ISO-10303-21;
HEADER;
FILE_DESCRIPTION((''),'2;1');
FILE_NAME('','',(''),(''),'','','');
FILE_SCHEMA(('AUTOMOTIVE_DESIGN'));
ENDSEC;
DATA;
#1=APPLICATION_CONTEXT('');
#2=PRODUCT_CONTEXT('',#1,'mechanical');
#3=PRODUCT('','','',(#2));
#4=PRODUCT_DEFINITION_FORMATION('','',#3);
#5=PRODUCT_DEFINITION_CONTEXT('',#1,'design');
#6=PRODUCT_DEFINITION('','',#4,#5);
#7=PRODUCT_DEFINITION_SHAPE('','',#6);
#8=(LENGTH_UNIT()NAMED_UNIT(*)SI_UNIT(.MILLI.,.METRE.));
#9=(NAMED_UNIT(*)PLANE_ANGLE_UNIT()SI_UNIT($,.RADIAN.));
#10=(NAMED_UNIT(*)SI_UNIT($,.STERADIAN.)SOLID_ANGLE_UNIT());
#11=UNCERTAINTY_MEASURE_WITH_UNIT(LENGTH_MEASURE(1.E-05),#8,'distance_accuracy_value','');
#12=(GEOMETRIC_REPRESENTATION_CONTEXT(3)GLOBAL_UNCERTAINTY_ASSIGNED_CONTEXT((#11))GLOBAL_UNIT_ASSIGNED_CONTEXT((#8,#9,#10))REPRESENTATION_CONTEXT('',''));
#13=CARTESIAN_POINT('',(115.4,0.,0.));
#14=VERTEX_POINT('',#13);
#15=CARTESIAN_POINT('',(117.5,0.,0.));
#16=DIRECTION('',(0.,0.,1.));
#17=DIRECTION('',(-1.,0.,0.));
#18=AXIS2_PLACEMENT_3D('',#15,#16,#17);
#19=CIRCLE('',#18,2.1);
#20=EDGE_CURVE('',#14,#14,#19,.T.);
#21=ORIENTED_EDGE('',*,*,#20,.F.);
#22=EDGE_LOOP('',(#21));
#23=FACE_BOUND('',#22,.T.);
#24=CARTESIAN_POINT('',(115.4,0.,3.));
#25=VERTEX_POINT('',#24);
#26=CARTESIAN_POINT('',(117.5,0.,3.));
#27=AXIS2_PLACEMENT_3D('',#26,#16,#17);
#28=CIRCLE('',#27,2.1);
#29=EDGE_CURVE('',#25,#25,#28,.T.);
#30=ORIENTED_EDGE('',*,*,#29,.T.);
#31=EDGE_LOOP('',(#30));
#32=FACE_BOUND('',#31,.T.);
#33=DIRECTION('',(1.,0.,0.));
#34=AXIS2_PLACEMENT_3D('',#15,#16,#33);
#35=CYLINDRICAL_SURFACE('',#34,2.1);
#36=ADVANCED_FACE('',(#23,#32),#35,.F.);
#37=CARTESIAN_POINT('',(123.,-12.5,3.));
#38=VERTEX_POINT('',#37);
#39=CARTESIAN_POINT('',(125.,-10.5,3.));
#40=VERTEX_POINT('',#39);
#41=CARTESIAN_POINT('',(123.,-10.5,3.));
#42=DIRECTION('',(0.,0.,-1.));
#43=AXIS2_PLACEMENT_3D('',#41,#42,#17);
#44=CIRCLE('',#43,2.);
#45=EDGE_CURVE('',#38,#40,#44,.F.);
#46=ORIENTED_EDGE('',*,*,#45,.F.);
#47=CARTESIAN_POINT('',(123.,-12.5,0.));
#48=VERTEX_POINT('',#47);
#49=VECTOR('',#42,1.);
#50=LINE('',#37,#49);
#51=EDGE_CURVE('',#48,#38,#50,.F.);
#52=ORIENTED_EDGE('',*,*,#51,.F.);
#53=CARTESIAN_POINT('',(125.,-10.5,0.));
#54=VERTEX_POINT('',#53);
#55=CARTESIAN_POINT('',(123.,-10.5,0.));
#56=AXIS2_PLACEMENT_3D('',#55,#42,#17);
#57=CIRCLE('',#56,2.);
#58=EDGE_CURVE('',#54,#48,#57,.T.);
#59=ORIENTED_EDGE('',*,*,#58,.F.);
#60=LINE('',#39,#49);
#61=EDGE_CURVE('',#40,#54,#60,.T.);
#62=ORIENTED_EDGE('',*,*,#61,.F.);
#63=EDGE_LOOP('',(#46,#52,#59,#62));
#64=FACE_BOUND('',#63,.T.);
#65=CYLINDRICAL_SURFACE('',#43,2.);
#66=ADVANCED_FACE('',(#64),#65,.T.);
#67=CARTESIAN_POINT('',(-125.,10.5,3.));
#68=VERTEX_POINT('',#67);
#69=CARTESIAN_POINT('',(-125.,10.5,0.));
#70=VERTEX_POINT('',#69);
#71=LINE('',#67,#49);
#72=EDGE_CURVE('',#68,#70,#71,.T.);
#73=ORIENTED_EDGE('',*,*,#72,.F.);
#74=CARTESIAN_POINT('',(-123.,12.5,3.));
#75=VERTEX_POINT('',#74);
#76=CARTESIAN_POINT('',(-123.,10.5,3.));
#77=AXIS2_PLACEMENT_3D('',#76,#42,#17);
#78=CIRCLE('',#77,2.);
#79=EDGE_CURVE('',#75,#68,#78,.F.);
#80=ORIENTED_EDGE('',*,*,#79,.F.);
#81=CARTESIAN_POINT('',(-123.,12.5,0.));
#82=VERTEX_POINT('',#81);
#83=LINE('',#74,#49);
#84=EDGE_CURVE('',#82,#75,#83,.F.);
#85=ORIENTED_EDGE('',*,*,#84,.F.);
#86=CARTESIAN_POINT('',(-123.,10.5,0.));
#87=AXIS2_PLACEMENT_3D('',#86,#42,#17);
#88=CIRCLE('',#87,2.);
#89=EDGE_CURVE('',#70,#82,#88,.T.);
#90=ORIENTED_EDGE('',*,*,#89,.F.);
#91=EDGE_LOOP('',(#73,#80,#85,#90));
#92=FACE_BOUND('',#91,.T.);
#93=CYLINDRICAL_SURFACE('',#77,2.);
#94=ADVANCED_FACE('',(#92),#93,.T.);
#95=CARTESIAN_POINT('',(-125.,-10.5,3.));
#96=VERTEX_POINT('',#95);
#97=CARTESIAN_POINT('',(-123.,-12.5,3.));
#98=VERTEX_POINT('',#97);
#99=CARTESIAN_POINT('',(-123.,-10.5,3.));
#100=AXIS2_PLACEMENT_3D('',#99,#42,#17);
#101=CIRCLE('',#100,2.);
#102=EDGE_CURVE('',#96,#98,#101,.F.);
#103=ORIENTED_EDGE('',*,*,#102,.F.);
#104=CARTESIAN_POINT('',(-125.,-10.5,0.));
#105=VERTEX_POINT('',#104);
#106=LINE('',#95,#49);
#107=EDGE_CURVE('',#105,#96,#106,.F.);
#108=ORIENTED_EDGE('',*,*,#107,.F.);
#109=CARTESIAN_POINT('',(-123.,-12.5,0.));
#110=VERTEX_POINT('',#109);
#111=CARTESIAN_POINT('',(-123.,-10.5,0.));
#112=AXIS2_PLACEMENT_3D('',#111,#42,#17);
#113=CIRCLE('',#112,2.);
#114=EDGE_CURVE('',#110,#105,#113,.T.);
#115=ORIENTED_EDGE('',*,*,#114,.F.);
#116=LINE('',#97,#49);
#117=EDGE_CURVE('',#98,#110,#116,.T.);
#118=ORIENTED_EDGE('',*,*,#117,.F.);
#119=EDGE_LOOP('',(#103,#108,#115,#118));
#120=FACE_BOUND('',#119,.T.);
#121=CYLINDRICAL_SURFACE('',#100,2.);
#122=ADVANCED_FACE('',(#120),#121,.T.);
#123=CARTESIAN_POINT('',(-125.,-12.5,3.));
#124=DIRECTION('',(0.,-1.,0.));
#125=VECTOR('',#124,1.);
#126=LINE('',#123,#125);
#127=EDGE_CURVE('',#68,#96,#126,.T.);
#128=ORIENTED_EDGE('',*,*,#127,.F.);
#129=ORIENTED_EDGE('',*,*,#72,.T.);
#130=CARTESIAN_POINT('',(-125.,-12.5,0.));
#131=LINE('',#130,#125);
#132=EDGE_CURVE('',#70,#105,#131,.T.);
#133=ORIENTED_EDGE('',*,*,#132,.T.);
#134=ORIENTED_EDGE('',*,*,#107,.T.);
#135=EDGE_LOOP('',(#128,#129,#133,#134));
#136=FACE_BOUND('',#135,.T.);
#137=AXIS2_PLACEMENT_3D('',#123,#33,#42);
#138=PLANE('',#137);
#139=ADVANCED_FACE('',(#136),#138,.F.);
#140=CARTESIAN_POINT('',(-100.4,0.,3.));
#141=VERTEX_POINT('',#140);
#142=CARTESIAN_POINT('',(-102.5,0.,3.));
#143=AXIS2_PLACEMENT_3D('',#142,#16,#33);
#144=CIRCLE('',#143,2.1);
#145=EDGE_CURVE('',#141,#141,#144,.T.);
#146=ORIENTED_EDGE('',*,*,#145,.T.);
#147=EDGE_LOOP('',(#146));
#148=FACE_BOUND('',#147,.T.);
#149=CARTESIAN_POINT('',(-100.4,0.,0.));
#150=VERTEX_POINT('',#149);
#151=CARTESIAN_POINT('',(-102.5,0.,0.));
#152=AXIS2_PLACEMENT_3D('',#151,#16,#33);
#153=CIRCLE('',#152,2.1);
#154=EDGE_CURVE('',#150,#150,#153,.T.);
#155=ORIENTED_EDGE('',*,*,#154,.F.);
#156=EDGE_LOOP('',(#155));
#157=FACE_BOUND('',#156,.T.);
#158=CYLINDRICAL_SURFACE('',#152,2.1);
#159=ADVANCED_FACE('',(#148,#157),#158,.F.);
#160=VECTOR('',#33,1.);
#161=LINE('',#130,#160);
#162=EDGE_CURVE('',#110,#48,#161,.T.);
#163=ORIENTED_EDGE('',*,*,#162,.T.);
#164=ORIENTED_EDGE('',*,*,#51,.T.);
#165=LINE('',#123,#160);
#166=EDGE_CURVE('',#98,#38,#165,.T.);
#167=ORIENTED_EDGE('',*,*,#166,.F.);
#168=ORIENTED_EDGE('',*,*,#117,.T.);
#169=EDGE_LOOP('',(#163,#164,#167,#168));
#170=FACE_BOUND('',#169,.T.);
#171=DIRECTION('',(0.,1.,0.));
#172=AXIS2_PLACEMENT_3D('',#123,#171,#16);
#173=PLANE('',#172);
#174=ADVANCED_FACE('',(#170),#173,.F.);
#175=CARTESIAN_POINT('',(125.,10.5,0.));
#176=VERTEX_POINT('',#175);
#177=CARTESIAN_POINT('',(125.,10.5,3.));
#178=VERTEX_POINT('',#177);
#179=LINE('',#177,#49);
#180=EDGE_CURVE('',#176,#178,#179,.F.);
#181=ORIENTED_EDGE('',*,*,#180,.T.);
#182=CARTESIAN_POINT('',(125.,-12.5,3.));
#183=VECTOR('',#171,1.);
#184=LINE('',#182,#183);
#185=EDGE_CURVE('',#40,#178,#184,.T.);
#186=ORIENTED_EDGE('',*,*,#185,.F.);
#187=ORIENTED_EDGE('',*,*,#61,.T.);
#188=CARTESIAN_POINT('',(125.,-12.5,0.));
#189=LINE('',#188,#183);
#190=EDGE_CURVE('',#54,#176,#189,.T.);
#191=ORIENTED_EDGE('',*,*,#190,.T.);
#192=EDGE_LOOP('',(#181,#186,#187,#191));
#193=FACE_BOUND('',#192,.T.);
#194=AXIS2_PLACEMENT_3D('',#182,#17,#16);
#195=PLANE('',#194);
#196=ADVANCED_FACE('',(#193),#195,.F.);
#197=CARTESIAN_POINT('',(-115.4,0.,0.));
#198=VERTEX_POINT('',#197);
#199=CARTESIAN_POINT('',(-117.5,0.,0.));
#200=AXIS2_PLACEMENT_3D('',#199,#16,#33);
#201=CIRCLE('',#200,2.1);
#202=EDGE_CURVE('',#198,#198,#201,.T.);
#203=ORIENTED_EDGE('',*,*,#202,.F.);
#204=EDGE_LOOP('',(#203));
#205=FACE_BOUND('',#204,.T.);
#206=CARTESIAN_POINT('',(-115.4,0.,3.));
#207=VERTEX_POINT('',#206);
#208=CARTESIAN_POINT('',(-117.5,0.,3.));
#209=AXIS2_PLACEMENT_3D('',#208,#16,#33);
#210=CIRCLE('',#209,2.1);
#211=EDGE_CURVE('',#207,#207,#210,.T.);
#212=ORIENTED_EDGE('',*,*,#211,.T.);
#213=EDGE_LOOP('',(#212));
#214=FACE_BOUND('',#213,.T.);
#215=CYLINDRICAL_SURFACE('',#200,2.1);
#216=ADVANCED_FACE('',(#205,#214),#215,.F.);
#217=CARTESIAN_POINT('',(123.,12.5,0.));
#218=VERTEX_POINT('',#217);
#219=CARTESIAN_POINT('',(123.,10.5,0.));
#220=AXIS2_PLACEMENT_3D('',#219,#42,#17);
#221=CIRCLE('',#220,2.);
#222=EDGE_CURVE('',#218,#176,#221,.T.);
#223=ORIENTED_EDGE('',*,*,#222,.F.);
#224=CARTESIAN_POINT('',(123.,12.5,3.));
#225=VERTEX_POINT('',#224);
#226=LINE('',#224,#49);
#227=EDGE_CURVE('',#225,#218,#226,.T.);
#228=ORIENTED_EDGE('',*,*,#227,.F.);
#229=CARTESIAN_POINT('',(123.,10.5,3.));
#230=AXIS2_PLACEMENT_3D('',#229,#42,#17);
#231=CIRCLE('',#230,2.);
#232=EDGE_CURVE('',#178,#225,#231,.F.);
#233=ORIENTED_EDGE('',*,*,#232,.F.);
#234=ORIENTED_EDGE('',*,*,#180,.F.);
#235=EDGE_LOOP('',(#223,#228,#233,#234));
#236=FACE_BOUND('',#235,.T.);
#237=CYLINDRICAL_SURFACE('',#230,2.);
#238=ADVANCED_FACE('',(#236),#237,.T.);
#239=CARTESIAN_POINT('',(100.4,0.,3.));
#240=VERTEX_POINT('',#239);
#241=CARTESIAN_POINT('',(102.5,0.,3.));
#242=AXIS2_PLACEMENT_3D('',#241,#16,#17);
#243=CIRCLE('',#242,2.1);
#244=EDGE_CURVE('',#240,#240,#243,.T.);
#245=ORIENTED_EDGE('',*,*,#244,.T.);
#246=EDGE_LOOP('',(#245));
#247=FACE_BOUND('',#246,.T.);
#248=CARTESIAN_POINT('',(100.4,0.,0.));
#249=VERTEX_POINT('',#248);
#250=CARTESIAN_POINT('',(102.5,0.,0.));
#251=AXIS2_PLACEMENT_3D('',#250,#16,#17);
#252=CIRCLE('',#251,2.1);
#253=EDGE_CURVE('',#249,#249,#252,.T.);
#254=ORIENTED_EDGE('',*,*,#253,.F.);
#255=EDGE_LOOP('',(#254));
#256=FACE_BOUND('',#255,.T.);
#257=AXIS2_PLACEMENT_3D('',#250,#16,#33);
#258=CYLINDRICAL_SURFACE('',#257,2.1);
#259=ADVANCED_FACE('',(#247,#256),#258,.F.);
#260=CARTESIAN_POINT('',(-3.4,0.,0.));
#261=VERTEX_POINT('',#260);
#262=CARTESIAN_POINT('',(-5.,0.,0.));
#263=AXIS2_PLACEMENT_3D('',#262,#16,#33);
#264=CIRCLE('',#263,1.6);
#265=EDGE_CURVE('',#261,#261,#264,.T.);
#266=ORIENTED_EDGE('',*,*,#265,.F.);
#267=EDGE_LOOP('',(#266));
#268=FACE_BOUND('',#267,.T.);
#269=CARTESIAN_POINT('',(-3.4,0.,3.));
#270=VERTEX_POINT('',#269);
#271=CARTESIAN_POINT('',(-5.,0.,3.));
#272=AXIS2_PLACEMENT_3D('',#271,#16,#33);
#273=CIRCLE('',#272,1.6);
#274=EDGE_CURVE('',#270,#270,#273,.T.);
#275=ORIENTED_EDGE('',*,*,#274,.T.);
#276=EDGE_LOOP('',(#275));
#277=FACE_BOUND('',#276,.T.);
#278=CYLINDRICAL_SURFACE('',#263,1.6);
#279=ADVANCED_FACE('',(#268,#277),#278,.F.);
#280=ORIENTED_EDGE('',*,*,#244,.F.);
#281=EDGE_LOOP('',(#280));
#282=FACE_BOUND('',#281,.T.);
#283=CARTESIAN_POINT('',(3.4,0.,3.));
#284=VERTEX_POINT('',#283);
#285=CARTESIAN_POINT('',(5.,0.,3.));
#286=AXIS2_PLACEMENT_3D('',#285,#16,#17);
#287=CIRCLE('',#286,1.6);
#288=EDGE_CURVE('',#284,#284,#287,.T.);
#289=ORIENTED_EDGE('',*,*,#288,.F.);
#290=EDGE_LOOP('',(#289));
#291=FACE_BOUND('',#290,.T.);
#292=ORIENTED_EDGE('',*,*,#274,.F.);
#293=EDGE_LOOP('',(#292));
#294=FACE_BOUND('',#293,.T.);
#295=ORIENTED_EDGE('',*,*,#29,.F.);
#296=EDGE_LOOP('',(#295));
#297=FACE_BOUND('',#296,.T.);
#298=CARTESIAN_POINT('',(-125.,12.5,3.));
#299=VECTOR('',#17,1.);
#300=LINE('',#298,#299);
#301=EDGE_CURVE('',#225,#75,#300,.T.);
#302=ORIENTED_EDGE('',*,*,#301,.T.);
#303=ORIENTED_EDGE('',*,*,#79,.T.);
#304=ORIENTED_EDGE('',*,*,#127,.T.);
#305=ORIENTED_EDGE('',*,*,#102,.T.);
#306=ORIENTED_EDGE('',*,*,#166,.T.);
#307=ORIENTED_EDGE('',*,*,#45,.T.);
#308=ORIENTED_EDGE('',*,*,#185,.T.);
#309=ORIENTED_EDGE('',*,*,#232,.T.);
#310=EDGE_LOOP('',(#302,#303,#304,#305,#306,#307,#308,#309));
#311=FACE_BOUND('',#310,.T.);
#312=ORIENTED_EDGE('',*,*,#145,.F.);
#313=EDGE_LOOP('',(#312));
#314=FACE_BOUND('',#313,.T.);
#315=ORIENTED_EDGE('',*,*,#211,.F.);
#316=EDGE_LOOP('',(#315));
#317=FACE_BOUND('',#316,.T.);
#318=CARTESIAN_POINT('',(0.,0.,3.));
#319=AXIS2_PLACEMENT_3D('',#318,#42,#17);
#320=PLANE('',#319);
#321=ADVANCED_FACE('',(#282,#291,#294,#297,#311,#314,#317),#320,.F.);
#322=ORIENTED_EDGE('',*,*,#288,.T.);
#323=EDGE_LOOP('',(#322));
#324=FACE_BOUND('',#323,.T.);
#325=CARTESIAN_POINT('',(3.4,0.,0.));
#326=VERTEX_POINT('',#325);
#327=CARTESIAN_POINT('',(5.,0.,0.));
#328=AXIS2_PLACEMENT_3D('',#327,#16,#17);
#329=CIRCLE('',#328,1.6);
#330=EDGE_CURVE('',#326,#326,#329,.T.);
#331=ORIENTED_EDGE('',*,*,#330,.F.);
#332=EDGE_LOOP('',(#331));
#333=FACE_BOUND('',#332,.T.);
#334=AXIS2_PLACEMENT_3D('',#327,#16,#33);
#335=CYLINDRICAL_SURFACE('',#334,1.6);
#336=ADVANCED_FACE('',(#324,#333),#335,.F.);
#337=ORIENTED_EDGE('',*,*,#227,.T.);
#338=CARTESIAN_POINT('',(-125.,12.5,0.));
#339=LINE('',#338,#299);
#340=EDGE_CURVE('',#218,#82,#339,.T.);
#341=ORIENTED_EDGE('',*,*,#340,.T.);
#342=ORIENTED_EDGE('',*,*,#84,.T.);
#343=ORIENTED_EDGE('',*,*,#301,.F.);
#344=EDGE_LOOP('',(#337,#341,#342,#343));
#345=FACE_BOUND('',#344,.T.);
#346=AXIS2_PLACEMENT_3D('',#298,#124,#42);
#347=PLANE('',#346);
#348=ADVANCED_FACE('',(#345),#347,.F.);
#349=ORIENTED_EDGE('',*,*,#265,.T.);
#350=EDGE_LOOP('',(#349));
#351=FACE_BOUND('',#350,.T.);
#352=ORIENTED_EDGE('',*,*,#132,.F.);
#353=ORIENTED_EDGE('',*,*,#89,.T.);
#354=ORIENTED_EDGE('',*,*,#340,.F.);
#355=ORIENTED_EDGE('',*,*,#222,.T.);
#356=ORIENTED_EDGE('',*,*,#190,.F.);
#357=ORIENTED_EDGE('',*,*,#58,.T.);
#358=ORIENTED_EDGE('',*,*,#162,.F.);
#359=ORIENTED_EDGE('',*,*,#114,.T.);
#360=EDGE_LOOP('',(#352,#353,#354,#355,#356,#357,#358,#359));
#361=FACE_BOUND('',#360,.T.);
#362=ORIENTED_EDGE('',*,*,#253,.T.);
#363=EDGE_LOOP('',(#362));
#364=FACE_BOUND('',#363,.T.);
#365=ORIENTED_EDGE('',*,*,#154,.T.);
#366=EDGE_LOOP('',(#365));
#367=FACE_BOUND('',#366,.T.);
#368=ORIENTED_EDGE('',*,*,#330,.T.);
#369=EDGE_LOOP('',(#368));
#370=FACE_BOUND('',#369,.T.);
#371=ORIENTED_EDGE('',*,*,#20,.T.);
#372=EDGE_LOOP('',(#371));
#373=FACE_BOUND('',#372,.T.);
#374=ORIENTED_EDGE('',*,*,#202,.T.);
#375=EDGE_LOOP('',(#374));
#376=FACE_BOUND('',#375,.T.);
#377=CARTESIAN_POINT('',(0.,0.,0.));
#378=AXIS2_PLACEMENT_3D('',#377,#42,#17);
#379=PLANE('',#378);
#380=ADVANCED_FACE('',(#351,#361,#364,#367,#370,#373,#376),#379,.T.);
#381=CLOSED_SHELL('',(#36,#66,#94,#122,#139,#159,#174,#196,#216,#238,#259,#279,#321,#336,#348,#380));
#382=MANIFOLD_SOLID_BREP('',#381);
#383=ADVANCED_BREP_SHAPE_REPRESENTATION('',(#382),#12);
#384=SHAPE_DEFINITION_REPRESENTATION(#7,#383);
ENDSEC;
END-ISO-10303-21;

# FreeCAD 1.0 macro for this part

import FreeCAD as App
import Part
import Sketcher


def edges_at(feature, points):
    """Names of the edges that pass closest to the given points."""
    edges = feature.Shape.Edges
    near = lambda p: min(range(len(edges)), key=lambda i: edges[i].distToShape(Part.Vertex(*p))[0])
    return sorted({f"Edge{near(p) + 1}" for p in points})


def add_polygon(sketch, points):
    """Adds a closed chain of lines whose ends are joined by coincident constraints."""
    first, n = sketch.GeometryCount, len(points)
    for a, b in zip(points, points[1:] + points[:1]):
        sketch.addGeometry(Part.LineSegment(App.Vector(*a, 0), App.Vector(*b, 0)), False)
    for i in range(n):
        sketch.addConstraint(Sketcher.Constraint("Coincident", first + i, 2, first + (i + 1) % n, 1))

doc = App.newDocument("Part")
body = doc.addObject("PartDesign::Body", "Body")

sketch1 = doc.addObject("Sketcher::SketchObject", "Sketch")
body.addObject(sketch1)
sketch1.AttachmentSupport = (doc.XY_Plane, [""])
sketch1.MapMode = "FlatFace"
add_polygon(sketch1, [(-125, 12), (-125, -12), (125, -12), (125, 12)])
sketch1.addConstraint(Sketcher.Constraint("Vertical", 0))
sketch1.addConstraint(Sketcher.Constraint("Horizontal", 1))
sketch1.addConstraint(Sketcher.Constraint("Vertical", 2))
sketch1.addConstraint(Sketcher.Constraint("Horizontal", 3))
sketch1.addConstraint(Sketcher.Constraint("Symmetric", 0, 2, 2, 2, -1, 1))
sketch1.addConstraint(Sketcher.Constraint("DistanceX", 1, 1, 1, 2, 250.0))
sketch1.addConstraint(Sketcher.Constraint("DistanceY", 0, 2, 0, 1, 25.0))
pad1 = doc.addObject("PartDesign::Pad", "Pad")
body.addObject(pad1)
pad1.Profile = sketch1
pad1.Length = 3

sketch2 = doc.addObject("Sketcher::SketchObject", "Sketch001")
body.addObject(sketch2)
sketch2.AttachmentSupport = (doc.XY_Plane, [""])
sketch2.MapMode = "FlatFace"
sketch2.AttachmentOffset = App.Placement(App.Vector(0, 0, 3), App.Rotation())
sketch2.addGeometry(Part.Circle(App.Vector(-117.5, 0, 0), App.Vector(0, 0, 1), 2.1), False)
sketch2.addGeometry(Part.Circle(App.Vector(-102.5, 0, 0), App.Vector(0, 0, 1), 2.1), False)
sketch2.addGeometry(Part.Circle(App.Vector(102.5, 0, 0), App.Vector(0, 0, 1), 2.1), False)
sketch2.addGeometry(Part.Circle(App.Vector(117.5, 0, 0), App.Vector(0, 0, 1), 2.1), False)
sketch2.addGeometry(Part.Circle(App.Vector(-5, 0, 0), App.Vector(0, 0, 1), 1.6), False)
sketch2.addGeometry(Part.Circle(App.Vector(5, 0, 0), App.Vector(0, 0, 1), 1.6), False)
sketch2.addConstraint(Sketcher.Constraint("Equal", 0, 1))
sketch2.addConstraint(Sketcher.Constraint("Equal", 1, 2))
sketch2.addConstraint(Sketcher.Constraint("Equal", 2, 3))
sketch2.addConstraint(Sketcher.Constraint("Equal", 4, 5))
sketch2.addConstraint(Sketcher.Constraint("Symmetric", 1, 3, 2, 3, -1, 1))
sketch2.addConstraint(Sketcher.Constraint("Symmetric", 0, 3, 3, 3, -1, 1))
sketch2.addConstraint(Sketcher.Constraint("Symmetric", 4, 3, 5, 3, -1, 1))
sketch2.addConstraint(Sketcher.Constraint("PointOnObject", 0, 3, -1))
sketch2.addConstraint(Sketcher.Constraint("PointOnObject", 1, 3, -1))
sketch2.addConstraint(Sketcher.Constraint("PointOnObject", 4, 3, -1))
sketch2.addConstraint(Sketcher.Constraint("Diameter", 0, 4.2))
sketch2.addConstraint(Sketcher.Constraint("Diameter", 4, 3.2))
sketch2.addConstraint(Sketcher.Constraint("DistanceX", 4, 3, -1, 1, 5.0))
sketch2.addConstraint(Sketcher.Constraint("DistanceX", 0, 3, 1, 3, 15.0))
sketch2.addConstraint(Sketcher.Constraint("DistanceX", 1, 3, 2, 3, 205.0))
pocket1 = doc.addObject("PartDesign::Pocket", "Pocket")
body.addObject(pocket1)
pocket1.Profile = sketch2
pocket1.Length = 3
doc.recompute()

fillet = doc.addObject("PartDesign::Fillet", "Fillet")
body.addObject(fillet)
fillet.Base = (pocket1, edges_at(pocket1, [
    (125, -12.5, 1.5),
    (-125, -12.5, 1.5),
    (-125, 12.5, 1.5),
    (125, 12.5, 1.5),
]))
fillet.Radius = 2

doc.recompute()
